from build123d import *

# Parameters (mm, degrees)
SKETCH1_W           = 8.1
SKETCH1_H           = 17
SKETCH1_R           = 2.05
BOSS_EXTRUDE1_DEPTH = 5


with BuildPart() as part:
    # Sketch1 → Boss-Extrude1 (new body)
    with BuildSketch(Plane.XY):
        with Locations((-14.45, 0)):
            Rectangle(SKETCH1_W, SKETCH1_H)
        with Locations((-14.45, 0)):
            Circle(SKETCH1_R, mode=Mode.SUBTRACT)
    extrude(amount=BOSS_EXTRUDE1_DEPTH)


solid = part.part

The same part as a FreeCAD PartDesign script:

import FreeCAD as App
import Part
import Sketcher

V = App.Vector


def add_polygon(sketch, points):
    """Adds a closed chain of lines whose ends are joined by coincident constraints."""
    first, n = sketch.GeometryCount, len(points)
    for a, b in zip(points, points[1:] + points[:1]):
        sketch.addGeometry(Part.LineSegment(App.Vector(*a, 0), App.Vector(*b, 0)), False)
    for i in range(n):
        sketch.addConstraint(Sketcher.Constraint("Coincident", first + i, 2, first + (i + 1) % n, 1))

doc = App.newDocument("Part")
params = doc.addObject("Spreadsheet::Sheet", "Params")
for row, (alias, value) in enumerate([
    ("sketch1_diameter", "4.1 mm"),
    ("sketch1_height", "17 mm"),
    ("sketch1_width", "8.1 mm"),
    ("pad1_length", "5 mm"),
], start=1):
    params.set(f"A{row}", alias)
    params.set(f"B{row}", "=" + value)
    params.setAlias(f"B{row}", alias)

body = doc.addObject("PartDesign::Body", "Body")

# Sketch on XY plane
sketch1 = body.newObject("Sketcher::SketchObject", "Sketch")
sketch1.AttachmentSupport = (doc.getObject("XY_Plane"), [""])
sketch1.MapMode = "FlatFace"
add_polygon(sketch1, [(-18.5, 8.5), (-18.5, -8.5), (-10.4, -8.5), (-10.4, 8.5)])  # lines 0-3
sketch1.addGeometry(Part.Circle(V(-14.4, 0, 0), V(0, 0, 1), 2), False)  # 4
sketch1.addConstraint([
    Sketcher.Constraint("Vertical", 0),
    Sketcher.Constraint("Horizontal", 1),
    Sketcher.Constraint("Vertical", 2),
    Sketcher.Constraint("Horizontal", 3),
    Sketcher.Constraint("PointOnObject", 4, 3, -1),
    Sketcher.Constraint("Diameter", 4, 4.1),
    Sketcher.Constraint("DistanceY", 0, 2, 0, 1, 17.0),
    Sketcher.Constraint("DistanceX", 1, 1, 1, 2, 8.1),
    Sketcher.Constraint("DistanceX", 0, 2, -1, 1, 18.5),
    Sketcher.Constraint("DistanceY", 0, 2, -1, 1, 8.5),
    Sketcher.Constraint("DistanceX", 4, 3, -1, 1, 14.45),
])
sketch1.setExpression("Constraints[9]", "Params.sketch1_diameter")
sketch1.setExpression("Constraints[10]", "Params.sketch1_height")
sketch1.setExpression("Constraints[11]", "Params.sketch1_width")
pad1 = body.newObject("PartDesign::Pad", "Pad")
pad1.Profile = sketch1
pad1.setExpression("Length", "Params.pad1_length")

doc.recompute()
